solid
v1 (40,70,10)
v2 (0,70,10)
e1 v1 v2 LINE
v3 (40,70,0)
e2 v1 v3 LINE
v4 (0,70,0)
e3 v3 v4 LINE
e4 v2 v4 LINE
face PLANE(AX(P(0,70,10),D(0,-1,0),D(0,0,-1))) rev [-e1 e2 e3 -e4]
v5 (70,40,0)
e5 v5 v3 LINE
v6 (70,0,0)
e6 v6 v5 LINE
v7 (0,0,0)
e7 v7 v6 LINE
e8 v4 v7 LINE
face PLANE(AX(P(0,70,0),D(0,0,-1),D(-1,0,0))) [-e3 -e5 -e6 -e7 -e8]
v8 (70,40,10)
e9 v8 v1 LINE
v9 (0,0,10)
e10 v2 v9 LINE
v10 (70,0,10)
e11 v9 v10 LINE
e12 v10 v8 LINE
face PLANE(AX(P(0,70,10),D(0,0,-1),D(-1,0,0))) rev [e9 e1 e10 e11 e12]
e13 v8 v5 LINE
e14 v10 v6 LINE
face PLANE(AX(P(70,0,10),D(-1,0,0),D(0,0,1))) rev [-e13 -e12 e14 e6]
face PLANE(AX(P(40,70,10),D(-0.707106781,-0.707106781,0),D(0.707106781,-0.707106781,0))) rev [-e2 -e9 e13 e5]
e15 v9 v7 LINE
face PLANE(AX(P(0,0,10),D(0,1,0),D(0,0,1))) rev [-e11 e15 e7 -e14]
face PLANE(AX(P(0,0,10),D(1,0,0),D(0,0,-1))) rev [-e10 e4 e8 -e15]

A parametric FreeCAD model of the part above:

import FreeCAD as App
import Part
import Sketcher

V = App.Vector


def add_polygon(sketch, points):
    """Adds a closed chain of lines whose ends are joined by coincident constraints."""
    first, n = sketch.GeometryCount, len(points)
    for a, b in zip(points, points[1:] + points[:1]):
        sketch.addGeometry(Part.LineSegment(App.Vector(*a, 0), App.Vector(*b, 0)), False)
    for i in range(n):
        sketch.addConstraint(Sketcher.Constraint("Coincident", first + i, 2, first + (i + 1) % n, 1))

doc = App.newDocument("Part")
params = doc.addObject("Spreadsheet::Sheet", "Params")
for row, (alias, value) in enumerate([
    ("sketch1_width", "40 mm"),
    ("sketch1_width2", "70 mm"),
    ("pad1_length", "10 mm"),
], start=1):
    params.set(f"A{row}", alias)
    params.set(f"B{row}", "=" + value)
    params.setAlias(f"B{row}", alias)

body = doc.addObject("PartDesign::Body", "Body")

# Sketch on XY plane
sketch1 = body.newObject("Sketcher::SketchObject", "Sketch")
sketch1.AttachmentSupport = (doc.getObject("XY_Plane"), [""])
sketch1.MapMode = "FlatFace"
add_polygon(sketch1, [(70, 40), (40, 70), (0, 70), (0, 0), (70, 0)])  # lines 0-4
sketch1.addConstraint(Sketcher.Constraint("Horizontal", 1))
sketch1.addConstraint(Sketcher.Constraint("Vertical", 2))
sketch1.addConstraint(Sketcher.Constraint("Horizontal", 3))
sketch1.addConstraint(Sketcher.Constraint("Vertical", 4))
sketch1.addConstraint(Sketcher.Constraint("Coincident", 2, 2, -1, 1))
sketch1.addConstraint(Sketcher.Constraint("Equal", 3, 2))
sketch1.addConstraint(Sketcher.Constraint("Equal", 1, 4))
sketch1.addConstraint(Sketcher.Constraint("DistanceX", 1, 2, 1, 1, 40.0))
sketch1.addConstraint(Sketcher.Constraint("DistanceX", 3, 1, 3, 2, 70.0))
sketch1.setExpression("Constraints[12]", "Params.sketch1_width")
sketch1.setExpression("Constraints[13]", "Params.sketch1_width2")
pad1 = body.newObject("PartDesign::Pad", "Pad")
pad1.Profile = sketch1
pad1.setExpression("Length", "Params.pad1_length")

doc.recompute()
